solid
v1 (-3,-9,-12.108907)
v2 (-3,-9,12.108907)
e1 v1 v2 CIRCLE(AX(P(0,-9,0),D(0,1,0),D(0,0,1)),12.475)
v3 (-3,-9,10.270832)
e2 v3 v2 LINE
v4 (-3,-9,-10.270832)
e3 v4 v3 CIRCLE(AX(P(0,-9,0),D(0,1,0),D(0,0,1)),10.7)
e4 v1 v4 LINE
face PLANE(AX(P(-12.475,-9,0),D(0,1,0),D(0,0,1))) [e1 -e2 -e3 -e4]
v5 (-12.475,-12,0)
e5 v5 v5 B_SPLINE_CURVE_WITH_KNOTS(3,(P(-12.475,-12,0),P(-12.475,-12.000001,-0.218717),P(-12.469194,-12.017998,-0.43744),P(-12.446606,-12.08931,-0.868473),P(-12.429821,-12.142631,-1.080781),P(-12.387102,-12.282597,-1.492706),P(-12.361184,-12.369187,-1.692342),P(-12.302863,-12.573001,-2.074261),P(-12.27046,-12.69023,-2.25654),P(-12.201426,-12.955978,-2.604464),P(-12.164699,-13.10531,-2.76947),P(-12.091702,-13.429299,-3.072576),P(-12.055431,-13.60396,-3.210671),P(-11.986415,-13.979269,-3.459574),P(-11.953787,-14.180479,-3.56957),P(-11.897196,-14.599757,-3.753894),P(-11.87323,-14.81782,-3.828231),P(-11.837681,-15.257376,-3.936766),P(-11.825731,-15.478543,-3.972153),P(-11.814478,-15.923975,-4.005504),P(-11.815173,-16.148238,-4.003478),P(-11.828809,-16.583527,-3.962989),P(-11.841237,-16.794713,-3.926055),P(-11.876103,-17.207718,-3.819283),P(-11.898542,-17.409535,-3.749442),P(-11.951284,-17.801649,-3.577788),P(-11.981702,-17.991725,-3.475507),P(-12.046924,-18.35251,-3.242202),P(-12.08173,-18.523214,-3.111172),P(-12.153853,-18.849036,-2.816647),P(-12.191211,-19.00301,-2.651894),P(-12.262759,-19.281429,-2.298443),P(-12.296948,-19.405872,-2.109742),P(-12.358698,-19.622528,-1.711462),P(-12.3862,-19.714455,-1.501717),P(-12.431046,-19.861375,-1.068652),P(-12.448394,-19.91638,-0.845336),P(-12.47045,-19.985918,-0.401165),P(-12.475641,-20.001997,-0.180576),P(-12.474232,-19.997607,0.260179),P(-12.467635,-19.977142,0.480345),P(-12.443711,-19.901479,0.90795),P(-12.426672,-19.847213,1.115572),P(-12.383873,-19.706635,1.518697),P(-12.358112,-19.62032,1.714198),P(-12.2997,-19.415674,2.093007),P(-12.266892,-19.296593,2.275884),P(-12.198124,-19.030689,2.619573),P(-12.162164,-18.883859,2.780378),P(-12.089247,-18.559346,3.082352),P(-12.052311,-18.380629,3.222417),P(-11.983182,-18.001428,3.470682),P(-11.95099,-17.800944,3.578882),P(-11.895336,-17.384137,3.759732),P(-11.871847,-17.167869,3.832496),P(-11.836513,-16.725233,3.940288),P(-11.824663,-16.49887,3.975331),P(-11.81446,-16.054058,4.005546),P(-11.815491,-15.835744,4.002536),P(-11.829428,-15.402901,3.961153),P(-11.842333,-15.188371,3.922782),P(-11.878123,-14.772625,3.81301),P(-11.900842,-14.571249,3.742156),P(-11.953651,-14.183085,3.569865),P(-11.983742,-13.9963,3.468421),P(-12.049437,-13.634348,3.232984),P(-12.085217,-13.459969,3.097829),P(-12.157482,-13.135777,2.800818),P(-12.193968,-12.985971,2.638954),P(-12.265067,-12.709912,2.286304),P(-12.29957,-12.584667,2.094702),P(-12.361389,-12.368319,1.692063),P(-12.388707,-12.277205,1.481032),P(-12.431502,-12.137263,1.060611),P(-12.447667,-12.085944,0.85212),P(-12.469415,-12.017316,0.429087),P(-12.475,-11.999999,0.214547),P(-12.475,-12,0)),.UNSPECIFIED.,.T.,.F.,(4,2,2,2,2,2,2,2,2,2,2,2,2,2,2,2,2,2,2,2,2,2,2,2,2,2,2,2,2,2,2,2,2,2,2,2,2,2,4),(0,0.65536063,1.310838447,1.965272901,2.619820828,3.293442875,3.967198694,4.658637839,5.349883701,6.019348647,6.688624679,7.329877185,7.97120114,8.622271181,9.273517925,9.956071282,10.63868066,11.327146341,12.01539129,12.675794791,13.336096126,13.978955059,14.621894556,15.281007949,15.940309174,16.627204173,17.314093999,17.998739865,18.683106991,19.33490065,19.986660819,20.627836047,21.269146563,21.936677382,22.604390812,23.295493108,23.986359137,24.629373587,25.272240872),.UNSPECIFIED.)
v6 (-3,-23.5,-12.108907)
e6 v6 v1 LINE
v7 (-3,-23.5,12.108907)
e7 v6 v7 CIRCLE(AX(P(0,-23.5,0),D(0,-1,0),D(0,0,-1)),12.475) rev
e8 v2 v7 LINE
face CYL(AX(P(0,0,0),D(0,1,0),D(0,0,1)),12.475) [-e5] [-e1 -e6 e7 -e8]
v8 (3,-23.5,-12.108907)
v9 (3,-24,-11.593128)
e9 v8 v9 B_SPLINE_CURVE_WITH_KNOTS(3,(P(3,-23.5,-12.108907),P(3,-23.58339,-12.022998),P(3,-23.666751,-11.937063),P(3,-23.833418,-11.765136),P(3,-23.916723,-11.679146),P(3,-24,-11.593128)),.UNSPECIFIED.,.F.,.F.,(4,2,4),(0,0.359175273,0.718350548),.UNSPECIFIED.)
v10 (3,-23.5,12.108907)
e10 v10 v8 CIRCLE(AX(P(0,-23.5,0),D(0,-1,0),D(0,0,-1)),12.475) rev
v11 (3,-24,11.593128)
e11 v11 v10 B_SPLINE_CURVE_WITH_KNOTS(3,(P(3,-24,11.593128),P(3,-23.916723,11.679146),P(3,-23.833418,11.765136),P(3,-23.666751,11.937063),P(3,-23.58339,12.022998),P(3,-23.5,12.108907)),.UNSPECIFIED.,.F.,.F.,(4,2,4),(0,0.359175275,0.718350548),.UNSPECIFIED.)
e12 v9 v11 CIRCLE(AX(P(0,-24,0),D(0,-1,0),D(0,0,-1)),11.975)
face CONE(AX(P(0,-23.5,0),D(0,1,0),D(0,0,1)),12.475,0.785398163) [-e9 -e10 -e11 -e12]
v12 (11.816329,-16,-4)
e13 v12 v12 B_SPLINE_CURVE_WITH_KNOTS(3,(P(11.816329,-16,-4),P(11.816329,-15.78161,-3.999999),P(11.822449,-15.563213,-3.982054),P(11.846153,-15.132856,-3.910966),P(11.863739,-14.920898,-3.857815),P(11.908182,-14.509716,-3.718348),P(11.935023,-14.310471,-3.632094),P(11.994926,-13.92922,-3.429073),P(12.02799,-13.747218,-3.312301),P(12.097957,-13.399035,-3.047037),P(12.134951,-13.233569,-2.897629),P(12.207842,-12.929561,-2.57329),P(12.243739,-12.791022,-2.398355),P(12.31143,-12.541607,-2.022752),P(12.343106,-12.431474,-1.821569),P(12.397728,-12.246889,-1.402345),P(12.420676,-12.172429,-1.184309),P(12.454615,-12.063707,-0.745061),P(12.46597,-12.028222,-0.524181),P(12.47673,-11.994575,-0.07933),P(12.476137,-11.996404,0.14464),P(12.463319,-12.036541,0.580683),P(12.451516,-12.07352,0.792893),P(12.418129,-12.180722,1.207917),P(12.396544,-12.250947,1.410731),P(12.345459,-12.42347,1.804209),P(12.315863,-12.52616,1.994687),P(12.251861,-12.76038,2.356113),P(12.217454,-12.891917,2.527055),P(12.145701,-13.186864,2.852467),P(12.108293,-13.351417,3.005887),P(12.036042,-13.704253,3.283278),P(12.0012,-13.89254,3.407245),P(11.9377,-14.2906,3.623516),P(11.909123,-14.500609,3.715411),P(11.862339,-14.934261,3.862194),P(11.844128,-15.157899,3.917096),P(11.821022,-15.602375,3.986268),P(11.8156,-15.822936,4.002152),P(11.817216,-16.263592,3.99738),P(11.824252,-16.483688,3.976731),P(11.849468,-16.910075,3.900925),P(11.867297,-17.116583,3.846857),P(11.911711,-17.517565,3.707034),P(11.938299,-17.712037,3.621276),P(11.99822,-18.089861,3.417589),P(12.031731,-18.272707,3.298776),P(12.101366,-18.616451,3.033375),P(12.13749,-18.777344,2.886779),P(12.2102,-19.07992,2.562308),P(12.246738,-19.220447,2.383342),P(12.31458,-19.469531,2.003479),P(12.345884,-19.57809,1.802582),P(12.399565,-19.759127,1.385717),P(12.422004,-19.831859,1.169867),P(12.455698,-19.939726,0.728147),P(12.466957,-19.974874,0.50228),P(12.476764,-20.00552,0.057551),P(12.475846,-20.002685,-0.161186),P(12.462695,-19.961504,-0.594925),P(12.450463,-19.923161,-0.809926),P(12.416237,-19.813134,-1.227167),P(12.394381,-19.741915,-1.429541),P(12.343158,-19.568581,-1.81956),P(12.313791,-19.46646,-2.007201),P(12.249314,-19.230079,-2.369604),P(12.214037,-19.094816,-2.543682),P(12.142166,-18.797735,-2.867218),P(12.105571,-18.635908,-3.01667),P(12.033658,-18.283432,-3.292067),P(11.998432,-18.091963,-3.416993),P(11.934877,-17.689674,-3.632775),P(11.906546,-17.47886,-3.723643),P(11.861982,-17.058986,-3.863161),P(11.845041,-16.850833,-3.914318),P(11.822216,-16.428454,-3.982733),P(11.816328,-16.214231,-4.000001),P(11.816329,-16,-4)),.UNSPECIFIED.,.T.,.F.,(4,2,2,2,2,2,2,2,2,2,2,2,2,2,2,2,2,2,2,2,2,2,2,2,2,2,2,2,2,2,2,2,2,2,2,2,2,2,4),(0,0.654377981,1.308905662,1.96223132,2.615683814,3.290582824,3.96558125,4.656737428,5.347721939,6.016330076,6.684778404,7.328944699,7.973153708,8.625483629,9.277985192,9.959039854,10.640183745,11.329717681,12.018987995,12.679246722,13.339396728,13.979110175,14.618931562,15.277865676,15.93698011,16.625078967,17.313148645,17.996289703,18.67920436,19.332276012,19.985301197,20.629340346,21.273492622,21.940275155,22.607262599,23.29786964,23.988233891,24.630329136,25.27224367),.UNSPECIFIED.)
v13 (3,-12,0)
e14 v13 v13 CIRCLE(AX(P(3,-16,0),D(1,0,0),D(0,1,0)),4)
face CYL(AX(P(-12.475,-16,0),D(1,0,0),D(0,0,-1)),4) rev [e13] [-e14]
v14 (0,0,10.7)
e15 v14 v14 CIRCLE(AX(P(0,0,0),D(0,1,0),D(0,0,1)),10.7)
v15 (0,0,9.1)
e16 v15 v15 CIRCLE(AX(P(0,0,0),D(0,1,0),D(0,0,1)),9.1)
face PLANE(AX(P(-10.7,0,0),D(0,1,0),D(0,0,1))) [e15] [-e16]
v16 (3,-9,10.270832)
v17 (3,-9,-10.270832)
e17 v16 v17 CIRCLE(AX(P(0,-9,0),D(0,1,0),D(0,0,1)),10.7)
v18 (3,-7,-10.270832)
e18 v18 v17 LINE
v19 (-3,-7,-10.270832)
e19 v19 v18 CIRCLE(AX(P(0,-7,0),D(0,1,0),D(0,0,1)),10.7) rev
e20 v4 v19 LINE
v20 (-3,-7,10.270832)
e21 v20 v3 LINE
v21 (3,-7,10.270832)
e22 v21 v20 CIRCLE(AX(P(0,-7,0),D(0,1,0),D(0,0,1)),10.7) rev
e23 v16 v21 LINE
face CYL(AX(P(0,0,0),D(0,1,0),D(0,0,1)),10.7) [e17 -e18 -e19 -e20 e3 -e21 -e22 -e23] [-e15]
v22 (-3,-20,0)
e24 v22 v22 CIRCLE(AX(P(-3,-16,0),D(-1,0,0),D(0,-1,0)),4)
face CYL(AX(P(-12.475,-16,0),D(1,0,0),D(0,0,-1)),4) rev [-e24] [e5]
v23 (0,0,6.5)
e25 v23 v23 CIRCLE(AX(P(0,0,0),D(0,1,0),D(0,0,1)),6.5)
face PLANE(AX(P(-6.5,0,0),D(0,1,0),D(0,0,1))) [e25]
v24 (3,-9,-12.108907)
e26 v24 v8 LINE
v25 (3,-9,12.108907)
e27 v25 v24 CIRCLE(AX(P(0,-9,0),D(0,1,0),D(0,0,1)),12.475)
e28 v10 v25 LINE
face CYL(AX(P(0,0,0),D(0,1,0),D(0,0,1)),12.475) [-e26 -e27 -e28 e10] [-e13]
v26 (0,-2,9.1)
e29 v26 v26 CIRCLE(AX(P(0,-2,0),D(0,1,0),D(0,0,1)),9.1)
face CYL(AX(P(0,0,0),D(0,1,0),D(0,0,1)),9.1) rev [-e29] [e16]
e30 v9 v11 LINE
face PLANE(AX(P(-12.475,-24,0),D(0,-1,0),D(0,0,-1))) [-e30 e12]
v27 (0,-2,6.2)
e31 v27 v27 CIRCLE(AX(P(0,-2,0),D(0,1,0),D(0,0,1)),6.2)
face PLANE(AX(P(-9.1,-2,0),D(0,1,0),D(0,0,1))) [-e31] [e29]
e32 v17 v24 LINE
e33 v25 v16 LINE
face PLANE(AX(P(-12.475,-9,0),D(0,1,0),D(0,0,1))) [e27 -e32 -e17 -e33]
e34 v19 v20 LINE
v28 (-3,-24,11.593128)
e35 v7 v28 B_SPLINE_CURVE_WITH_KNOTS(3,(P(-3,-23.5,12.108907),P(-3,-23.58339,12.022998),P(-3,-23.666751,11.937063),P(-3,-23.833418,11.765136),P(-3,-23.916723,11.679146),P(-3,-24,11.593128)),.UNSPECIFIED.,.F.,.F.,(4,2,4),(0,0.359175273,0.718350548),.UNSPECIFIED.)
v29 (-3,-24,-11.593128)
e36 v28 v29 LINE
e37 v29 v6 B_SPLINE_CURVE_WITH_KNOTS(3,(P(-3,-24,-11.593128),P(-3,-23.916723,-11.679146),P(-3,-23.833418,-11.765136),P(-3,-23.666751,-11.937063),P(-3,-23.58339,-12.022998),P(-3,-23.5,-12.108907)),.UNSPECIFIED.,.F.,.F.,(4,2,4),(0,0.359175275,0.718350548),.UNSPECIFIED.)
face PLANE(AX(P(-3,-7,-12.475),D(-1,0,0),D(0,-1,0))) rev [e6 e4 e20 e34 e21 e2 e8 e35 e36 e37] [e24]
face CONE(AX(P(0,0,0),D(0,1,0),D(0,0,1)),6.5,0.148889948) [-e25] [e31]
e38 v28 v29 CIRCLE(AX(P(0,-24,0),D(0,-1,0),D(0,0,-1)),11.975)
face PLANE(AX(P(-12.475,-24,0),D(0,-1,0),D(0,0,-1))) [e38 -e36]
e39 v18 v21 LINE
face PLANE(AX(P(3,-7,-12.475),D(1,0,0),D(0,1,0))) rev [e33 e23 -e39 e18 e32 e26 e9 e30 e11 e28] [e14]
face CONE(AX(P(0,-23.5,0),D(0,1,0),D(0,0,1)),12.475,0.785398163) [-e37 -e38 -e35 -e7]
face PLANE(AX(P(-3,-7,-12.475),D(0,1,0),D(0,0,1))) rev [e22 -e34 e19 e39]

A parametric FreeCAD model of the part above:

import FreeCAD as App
import Part
import Sketcher
Q = App.Units.Quantity


def edges_at(feature, points):
    """Names of the edges that pass closest to the given points."""
    edges = feature.Shape.Edges
    near = lambda p: min(range(len(edges)), key=lambda i: edges[i].distToShape(Part.Vertex(*p))[0])
    return sorted({f"Edge{near(p) + 1}" for p in points})

doc = App.newDocument("Part")
params = doc.addObject("Spreadsheet::Sheet", "Params")
for row, (alias, value) in enumerate([
    ("sketch1_height", "2 mm"),
    ("sketch1_height2", "9 mm"),
    ("sketch1_height3", "15 mm"),
    ("sketch1_width", "1.6 mm"),
    ("sketch1_width2", "6.5 mm"),
    ("revolution_angle", "360 deg"),
    ("sketch2_width", "6 mm"),
    ("sketch2_height", "17 mm"),
    ("sketch3_diameter", "8 mm"),
    ("chamfer_size", "0.5 mm"),
], start=1):
    params.set(f"A{row}", alias)
    params.set(f"B{row}", "=" + value)
    params.setAlias(f"B{row}", alias)

body = doc.addObject("PartDesign::Body", "Body")

# Sketch on XY plane
sketch1 = doc.addObject("Sketcher::SketchObject", "Sketch")
body.addObject(sketch1)
sketch1.AttachmentSupport = (doc.XY_Plane, [""])
sketch1.MapMode = "FlatFace"
sketch1.addGeometry([
    Part.LineSegment(App.Vector(-9.1, -2, 0), App.Vector(-9.1, 0, 0)),  # 0
    Part.LineSegment(App.Vector(-9.1, 0, 0), App.Vector(-10.7, 0, 0)),  # 1
    Part.LineSegment(App.Vector(-10.7, 0, 0), App.Vector(-10.7, -9, 0)),  # 2
    Part.LineSegment(App.Vector(-10.7, -9, 0), App.Vector(-12.5, -9, 0)),  # 3
    Part.LineSegment(App.Vector(-12.5, -9, 0), App.Vector(-12.5, -24, 0)),  # 4
    Part.LineSegment(App.Vector(-12.5, -24, 0), App.Vector(0, -24, 0)),  # 5
    Part.LineSegment(App.Vector(0, -24, 0), App.Vector(0, 0, 0)),  # 6
    Part.LineSegment(App.Vector(0, 0, 0), App.Vector(-6.5, 0, 0)),  # 7
    Part.LineSegment(App.Vector(-6.5, 0, 0), App.Vector(-6.2, -2, 0)),  # 8
    Part.LineSegment(App.Vector(-6.2, -2, 0), App.Vector(-9.1, -2, 0)),  # 9
], False)
sketch1.addConstraint([
    Sketcher.Constraint("Coincident", 0, 2, 1, 1),
    Sketcher.Constraint("Coincident", 1, 2, 2, 1),
    Sketcher.Constraint("Coincident", 2, 2, 3, 1),
    Sketcher.Constraint("Coincident", 3, 2, 4, 1),
    Sketcher.Constraint("Coincident", 4, 2, 5, 1),
    Sketcher.Constraint("Coincident", 5, 2, 6, 1),
    Sketcher.Constraint("Coincident", 6, 2, 7, 1),
    Sketcher.Constraint("Coincident", 7, 2, 8, 1),
    Sketcher.Constraint("Coincident", 8, 2, 9, 1),
    Sketcher.Constraint("Coincident", 9, 2, 0, 1),
    Sketcher.Constraint("Vertical", 0),
    Sketcher.Constraint("Horizontal", 1),
    Sketcher.Constraint("Vertical", 2),
    Sketcher.Constraint("Horizontal", 3),
    Sketcher.Constraint("Vertical", 4),
    Sketcher.Constraint("Horizontal", 5),
    Sketcher.Constraint("Vertical", 6),
    Sketcher.Constraint("Horizontal", 7),
    Sketcher.Constraint("Horizontal", 9),
    Sketcher.Constraint("Coincident", 6, 2, -1, 1),
    Sketcher.Constraint("PointOnObject", 0, 2, -1),
    Sketcher.Constraint("DistanceY", 0, 1, 0, 2, Q("2 mm")),
    Sketcher.Constraint("DistanceY", 2, 2, 2, 1, Q("9 mm")),
    Sketcher.Constraint("DistanceY", 4, 2, 4, 1, Q("15 mm")),
    Sketcher.Constraint("DistanceX", 1, 2, 1, 1, Q("1.6 mm")),
    Sketcher.Constraint("DistanceX", 7, 2, 7, 1, Q("6.5 mm")),
    Sketcher.Constraint("DistanceX", 9, 2, 9, 1, Q("2.9 mm")),
    Sketcher.Constraint("DistanceX", 0, 2, -1, 1, Q("9.1 mm")),
    Sketcher.Constraint("DistanceX", 3, 2, 3, 1, Q("1.775 mm")),
])
sketch1.setExpression("Constraints[21]", "Params.sketch1_height")
sketch1.setExpression("Constraints[22]", "Params.sketch1_height2")
sketch1.setExpression("Constraints[23]", "Params.sketch1_height3")
sketch1.setExpression("Constraints[24]", "Params.sketch1_width")
sketch1.setExpression("Constraints[25]", "Params.sketch1_width2")
revolution = doc.addObject("PartDesign::Revolution", "Revolution")
body.addObject(revolution)
revolution.Profile = sketch1
revolution.ReferenceAxis = (sketch1, ["V_Axis"])
revolution.setExpression("Angle", "Params.revolution_angle")

# Sketch on XY plane
sketch2 = doc.addObject("Sketcher::SketchObject", "Sketch001")
body.addObject(sketch2)
sketch2.AttachmentSupport = (doc.XY_Plane, [""])
sketch2.MapMode = "FlatFace"
sketch2.addGeometry([
    Part.LineSegment(App.Vector(-3, -7, 0), App.Vector(-3, -24, 0)),
    Part.LineSegment(App.Vector(-3, -24, 0), App.Vector(3, -24, 0)),
    Part.LineSegment(App.Vector(3, -24, 0), App.Vector(3, -7, 0)),
    Part.LineSegment(App.Vector(3, -7, 0), App.Vector(-3, -7, 0)),
], False)
sketch2.addConstraint([
    Sketcher.Constraint("Coincident", 0, 2, 1, 1),
    Sketcher.Constraint("Coincident", 1, 2, 2, 1),
    Sketcher.Constraint("Coincident", 2, 2, 3, 1),
    Sketcher.Constraint("Coincident", 3, 2, 0, 1),
    Sketcher.Constraint("Vertical", 0),
    Sketcher.Constraint("Horizontal", 1),
    Sketcher.Constraint("Vertical", 2),
    Sketcher.Constraint("Horizontal", 3),
    Sketcher.Constraint("DistanceX", 1, 1, 1, 2, Q("6 mm")),
    Sketcher.Constraint("DistanceY", 0, 2, 0, 1, Q("17 mm")),
    Sketcher.Constraint("DistanceX", 0, 2, -1, 1, Q("3 mm")),
    Sketcher.Constraint("DistanceY", 0, 2, -1, 1, Q("24 mm")),
])
sketch2.setExpression("Constraints[8]", "Params.sketch2_width")
sketch2.setExpression("Constraints[9]", "Params.sketch2_height")
pocket1 = doc.addObject("PartDesign::Pocket", "Pocket")
body.addObject(pocket1)
pocket1.Profile = sketch2
pocket1.Type = "ThroughAll"
pocket1.Midplane = True

# Sketch on YZ plane
sketch3 = doc.addObject("Sketcher::SketchObject", "Sketch002")
body.addObject(sketch3)
sketch3.AttachmentSupport = (doc.YZ_Plane, [""])
sketch3.MapMode = "FlatFace"
sketch3.addGeometry(Part.Circle(App.Vector(-16, 0, 0), App.Vector(0, 0, 1), 4), False)
sketch3.addConstraint([
    Sketcher.Constraint("PointOnObject", 0, 3, -1),
    Sketcher.Constraint("Diameter", 0, Q("8 mm")),
    Sketcher.Constraint("DistanceX", 0, 3, -1, 1, Q("16 mm")),
])
sketch3.setExpression("Constraints[1]", "Params.sketch3_diameter")
pocket2 = doc.addObject("PartDesign::Pocket", "Pocket001")
body.addObject(pocket2)
pocket2.Profile = sketch3
pocket2.Type = "ThroughAll"
pocket2.Midplane = True
doc.recompute()

chamfer = doc.addObject("PartDesign::Chamfer", "Chamfer")
body.addObject(chamfer)
chamfer.Base = (pocket2, edges_at(pocket2, [(12.475, -24, 0), (-12.475, -24, 0)]))
chamfer.setExpression("Size", "Params.chamfer_size")

doc.recompute()
